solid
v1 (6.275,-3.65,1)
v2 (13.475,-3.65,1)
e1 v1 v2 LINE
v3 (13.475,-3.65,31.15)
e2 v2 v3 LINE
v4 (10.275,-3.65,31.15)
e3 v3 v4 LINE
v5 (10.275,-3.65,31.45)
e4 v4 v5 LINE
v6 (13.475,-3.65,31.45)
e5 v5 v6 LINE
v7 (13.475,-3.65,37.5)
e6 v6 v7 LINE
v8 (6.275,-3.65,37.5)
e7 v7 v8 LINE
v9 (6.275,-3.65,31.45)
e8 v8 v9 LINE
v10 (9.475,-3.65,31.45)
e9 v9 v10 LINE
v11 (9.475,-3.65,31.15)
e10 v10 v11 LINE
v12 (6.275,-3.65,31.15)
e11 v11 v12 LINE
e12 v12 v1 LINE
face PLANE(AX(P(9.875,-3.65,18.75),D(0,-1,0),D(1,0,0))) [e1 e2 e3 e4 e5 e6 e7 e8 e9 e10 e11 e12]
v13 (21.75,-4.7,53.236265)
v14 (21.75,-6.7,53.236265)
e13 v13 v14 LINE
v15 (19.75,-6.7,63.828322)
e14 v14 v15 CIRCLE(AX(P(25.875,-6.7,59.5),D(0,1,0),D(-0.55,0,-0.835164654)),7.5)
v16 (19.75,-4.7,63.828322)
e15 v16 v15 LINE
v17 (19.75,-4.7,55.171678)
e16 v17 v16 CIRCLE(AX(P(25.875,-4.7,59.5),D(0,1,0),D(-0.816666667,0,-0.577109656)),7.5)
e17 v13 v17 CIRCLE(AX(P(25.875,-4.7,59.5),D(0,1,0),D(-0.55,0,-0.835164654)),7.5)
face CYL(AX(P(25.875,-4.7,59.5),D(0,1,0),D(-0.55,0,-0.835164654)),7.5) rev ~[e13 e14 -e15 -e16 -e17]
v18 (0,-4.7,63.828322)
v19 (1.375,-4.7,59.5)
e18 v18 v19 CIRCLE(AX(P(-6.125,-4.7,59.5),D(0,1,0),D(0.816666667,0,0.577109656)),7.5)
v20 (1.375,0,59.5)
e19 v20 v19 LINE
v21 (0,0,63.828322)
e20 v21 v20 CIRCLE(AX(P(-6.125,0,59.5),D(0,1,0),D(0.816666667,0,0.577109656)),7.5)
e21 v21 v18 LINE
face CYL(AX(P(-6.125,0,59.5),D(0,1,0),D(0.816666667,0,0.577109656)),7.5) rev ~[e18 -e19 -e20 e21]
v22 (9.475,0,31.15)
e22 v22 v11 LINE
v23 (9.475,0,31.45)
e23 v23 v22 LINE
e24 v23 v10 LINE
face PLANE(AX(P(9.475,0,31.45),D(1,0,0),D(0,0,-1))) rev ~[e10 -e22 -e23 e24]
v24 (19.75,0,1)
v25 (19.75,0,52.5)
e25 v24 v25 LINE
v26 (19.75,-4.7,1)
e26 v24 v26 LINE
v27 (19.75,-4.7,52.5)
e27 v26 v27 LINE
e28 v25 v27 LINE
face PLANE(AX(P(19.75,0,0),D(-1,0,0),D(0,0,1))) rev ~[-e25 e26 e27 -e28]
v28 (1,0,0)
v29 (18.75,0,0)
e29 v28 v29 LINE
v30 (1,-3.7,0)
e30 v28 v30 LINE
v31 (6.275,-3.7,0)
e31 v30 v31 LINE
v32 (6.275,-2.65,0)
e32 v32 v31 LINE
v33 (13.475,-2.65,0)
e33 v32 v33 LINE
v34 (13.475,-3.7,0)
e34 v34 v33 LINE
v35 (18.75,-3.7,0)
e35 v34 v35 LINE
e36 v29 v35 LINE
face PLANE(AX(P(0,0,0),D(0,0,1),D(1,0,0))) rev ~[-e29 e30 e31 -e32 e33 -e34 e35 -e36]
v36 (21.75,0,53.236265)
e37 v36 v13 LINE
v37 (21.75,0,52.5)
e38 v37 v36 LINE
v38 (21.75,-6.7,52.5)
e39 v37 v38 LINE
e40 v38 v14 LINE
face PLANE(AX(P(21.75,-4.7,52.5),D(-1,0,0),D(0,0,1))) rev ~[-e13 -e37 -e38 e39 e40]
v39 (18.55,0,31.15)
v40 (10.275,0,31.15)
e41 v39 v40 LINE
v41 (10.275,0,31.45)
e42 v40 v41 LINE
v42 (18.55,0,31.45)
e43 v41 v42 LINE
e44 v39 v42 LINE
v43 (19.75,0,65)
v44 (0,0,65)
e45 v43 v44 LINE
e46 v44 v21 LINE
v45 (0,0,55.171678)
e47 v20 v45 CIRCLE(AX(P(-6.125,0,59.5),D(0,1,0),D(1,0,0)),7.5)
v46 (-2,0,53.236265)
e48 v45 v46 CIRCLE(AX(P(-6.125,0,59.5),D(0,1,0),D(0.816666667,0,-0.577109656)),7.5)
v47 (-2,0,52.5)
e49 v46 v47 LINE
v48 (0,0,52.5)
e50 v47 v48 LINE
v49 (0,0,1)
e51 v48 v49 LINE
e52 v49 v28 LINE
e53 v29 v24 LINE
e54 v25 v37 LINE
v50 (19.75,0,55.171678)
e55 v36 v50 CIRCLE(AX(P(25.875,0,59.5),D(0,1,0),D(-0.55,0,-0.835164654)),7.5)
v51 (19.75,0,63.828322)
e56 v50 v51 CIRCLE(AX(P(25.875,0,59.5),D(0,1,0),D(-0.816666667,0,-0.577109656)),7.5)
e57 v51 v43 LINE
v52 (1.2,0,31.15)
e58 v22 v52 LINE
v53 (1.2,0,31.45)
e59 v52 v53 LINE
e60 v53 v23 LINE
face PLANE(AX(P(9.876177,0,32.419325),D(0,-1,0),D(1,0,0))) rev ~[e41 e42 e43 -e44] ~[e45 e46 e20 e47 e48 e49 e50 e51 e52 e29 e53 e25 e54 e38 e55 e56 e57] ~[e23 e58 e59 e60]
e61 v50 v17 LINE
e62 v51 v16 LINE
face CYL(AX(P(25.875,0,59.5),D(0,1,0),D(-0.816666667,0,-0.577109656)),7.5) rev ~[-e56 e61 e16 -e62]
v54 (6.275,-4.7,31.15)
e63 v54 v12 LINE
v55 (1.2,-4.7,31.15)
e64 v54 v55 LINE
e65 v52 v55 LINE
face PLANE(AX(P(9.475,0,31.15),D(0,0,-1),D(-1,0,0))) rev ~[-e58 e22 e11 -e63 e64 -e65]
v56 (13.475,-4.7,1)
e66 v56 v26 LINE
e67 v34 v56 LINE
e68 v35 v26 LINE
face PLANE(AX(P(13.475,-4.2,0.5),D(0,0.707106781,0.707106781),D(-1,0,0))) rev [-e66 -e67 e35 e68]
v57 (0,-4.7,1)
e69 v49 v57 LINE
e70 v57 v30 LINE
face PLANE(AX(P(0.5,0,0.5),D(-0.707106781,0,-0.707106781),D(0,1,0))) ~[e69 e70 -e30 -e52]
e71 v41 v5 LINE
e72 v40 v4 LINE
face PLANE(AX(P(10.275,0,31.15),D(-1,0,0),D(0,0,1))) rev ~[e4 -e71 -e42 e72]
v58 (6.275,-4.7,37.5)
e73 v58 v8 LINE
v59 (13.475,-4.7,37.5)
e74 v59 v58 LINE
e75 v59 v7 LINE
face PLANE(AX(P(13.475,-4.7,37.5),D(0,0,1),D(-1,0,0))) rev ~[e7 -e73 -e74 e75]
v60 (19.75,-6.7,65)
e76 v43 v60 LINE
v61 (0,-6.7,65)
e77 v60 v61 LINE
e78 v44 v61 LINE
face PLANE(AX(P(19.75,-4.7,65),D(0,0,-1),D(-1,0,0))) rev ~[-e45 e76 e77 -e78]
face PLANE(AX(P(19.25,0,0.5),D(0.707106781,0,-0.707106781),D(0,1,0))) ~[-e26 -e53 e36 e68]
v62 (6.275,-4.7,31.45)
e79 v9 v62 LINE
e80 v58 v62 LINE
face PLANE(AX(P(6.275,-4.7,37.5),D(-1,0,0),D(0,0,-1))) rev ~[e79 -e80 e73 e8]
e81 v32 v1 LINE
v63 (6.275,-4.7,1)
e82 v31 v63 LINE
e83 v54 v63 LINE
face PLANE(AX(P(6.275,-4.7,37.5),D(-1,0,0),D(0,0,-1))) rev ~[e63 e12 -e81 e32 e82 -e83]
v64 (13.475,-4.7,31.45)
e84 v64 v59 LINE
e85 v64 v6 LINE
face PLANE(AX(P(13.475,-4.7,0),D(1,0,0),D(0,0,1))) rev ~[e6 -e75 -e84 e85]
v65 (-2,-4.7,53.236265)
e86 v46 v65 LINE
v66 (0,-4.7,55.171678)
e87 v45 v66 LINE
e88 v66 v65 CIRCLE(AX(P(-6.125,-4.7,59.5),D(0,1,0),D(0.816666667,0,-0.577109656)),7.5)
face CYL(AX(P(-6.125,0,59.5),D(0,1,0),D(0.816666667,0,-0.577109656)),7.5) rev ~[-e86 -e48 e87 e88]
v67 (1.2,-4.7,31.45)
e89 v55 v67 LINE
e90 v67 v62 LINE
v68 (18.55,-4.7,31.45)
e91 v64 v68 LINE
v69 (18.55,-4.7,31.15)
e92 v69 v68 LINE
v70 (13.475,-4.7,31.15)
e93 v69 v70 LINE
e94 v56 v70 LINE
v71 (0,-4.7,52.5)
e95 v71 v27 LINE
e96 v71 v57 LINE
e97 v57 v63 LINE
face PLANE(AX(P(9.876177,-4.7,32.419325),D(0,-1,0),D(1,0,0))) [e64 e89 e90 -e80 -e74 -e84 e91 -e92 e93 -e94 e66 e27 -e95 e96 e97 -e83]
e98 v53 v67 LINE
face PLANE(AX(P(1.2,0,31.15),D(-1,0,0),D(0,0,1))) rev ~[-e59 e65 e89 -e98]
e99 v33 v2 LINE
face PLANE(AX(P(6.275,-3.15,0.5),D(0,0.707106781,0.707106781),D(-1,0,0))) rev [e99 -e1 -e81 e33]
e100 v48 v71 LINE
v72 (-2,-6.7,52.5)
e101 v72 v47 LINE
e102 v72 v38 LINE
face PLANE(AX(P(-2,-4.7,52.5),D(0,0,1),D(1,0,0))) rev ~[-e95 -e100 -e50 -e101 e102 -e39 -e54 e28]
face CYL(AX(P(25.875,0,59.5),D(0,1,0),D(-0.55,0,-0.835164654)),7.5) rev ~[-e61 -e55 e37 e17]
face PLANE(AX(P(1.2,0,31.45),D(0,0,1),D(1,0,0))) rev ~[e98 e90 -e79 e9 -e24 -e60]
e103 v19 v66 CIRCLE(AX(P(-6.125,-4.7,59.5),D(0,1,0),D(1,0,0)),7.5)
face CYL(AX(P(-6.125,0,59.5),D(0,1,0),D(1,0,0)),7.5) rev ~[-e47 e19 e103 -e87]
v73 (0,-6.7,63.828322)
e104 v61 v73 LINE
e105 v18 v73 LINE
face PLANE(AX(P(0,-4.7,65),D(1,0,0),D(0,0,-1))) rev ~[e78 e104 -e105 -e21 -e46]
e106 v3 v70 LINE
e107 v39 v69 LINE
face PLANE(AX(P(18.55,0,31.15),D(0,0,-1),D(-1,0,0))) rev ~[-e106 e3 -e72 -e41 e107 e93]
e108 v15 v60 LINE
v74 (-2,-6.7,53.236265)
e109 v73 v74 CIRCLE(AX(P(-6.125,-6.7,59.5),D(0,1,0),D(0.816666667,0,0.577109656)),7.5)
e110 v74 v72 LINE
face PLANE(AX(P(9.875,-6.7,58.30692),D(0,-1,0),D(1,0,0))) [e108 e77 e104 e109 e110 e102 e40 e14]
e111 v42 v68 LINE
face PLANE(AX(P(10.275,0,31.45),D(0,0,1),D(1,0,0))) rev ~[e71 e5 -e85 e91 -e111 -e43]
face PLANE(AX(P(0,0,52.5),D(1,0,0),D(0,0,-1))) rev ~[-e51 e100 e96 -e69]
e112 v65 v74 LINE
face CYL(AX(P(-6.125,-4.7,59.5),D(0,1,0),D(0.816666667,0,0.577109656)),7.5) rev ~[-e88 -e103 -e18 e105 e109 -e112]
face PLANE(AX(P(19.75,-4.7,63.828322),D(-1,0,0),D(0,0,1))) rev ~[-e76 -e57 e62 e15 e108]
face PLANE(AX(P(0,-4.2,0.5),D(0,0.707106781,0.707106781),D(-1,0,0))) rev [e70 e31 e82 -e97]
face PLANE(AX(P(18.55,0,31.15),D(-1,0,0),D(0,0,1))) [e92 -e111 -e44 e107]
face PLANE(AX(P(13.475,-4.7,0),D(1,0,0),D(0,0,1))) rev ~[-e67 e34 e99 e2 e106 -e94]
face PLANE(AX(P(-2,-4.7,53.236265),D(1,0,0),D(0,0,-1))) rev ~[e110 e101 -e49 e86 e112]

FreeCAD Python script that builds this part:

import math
import FreeCAD as App
import Part
import Sketcher


def edges_at(feature, points):
    """Names of the edges that pass closest to the given points."""
    edges = feature.Shape.Edges
    near = lambda p: min(range(len(edges)), key=lambda i: edges[i].distToShape(Part.Vertex(*p))[0])
    return sorted({f"Edge{near(p) + 1}" for p in points})


def add_polygon(sketch, points):
    """Adds a closed chain of lines whose ends are joined by coincident constraints."""
    first, n = sketch.GeometryCount, len(points)
    for a, b in zip(points, points[1:] + points[:1]):
        sketch.addGeometry(Part.LineSegment(App.Vector(*a, 0), App.Vector(*b, 0)), False)
    for i in range(n):
        sketch.addConstraint(Sketcher.Constraint("Coincident", first + i, 2, first + (i + 1) % n, 1))

doc = App.newDocument("Part")
body = doc.addObject("PartDesign::Body", "Body")

# Sketch on XZ plane
sketch1 = body.newObject("Sketcher::SketchObject", "Sketch")
sketch1.AttachmentSupport = (doc.getObject("XZ_Plane"), [""])
sketch1.MapMode = "FlatFace"
sketch1.addGeometry(Part.LineSegment(App.Vector(0, 0, 0), App.Vector(19.75, 0, 0)), False)  # 0
sketch1.addGeometry(Part.LineSegment(App.Vector(19.75, 0, 0), App.Vector(19.75, 52.5, 0)), False)  # 1
sketch1.addGeometry(Part.LineSegment(App.Vector(19.75, 52.5, 0), App.Vector(21.75, 52.5, 0)), False)  # 2
sketch1.addGeometry(Part.LineSegment(App.Vector(21.75, 52.5, 0), App.Vector(21.75, 53.24, 0)), False)  # 3
sketch1.addGeometry(Part.ArcOfCircle(Part.Circle(App.Vector(25.87, 59.5, 0), App.Vector(0, 0, 1), 7.5), math.radians(-145), math.radians(-123)), False)  # 4
sketch1.addGeometry(Part.ArcOfCircle(Part.Circle(App.Vector(25.88, 59.5, 0), App.Vector(0, 0, 1), 7.5), math.radians(145), math.radians(215)), False)  # 5
sketch1.addGeometry(Part.LineSegment(App.Vector(19.75, 63.83, 0), App.Vector(19.75, 65, 0)), False)  # 6
sketch1.addGeometry(Part.LineSegment(App.Vector(19.75, 65, 0), App.Vector(0, 65, 0)), False)  # 7
sketch1.addGeometry(Part.LineSegment(App.Vector(0, 65, 0), App.Vector(0, 63.83, 0)), False)  # 8
sketch1.addGeometry(Part.ArcOfCircle(Part.Circle(App.Vector(-6.13, 59.5, 0), App.Vector(0, 0, 1), 7.5), math.radians(0), math.radians(35)), False)  # 9
sketch1.addGeometry(Part.ArcOfCircle(Part.Circle(App.Vector(-6.13, 59.5, 0), App.Vector(0, 0, 1), 7.5), math.radians(-35), math.radians(0)), False)  # 10
sketch1.addGeometry(Part.ArcOfCircle(Part.Circle(App.Vector(-6.12, 59.5, 0), App.Vector(0, 0, 1), 7.5), math.radians(-57), math.radians(-35)), False)  # 11
sketch1.addGeometry(Part.LineSegment(App.Vector(-2, 53.24, 0), App.Vector(-2, 52.5, 0)), False)  # 12
sketch1.addGeometry(Part.LineSegment(App.Vector(-2, 52.5, 0), App.Vector(0, 52.5, 0)), False)  # 13
sketch1.addGeometry(Part.LineSegment(App.Vector(0, 52.5, 0), App.Vector(0, 0, 0)), False)  # 14
add_polygon(sketch1, [(18.55, 31.15), (10.28, 31.15), (10.28, 31.45), (18.55, 31.45)])  # lines 15-18
add_polygon(sketch1, [(1.2, 31.45), (9.47, 31.45), (9.47, 31.15), (1.2, 31.15)])  # lines 19-22
sketch1.addConstraint(Sketcher.Constraint("Coincident", 0, 2, 1, 1))
sketch1.addConstraint(Sketcher.Constraint("Coincident", 1, 2, 2, 1))
sketch1.addConstraint(Sketcher.Constraint("Coincident", 2, 2, 3, 1))
sketch1.addConstraint(Sketcher.Constraint("Coincident", 3, 2, 4, 2))
sketch1.addConstraint(Sketcher.Constraint("Tangent", 4, 1, 5, 2))
sketch1.addConstraint(Sketcher.Constraint("Coincident", 5, 1, 6, 1))
sketch1.addConstraint(Sketcher.Constraint("Coincident", 6, 2, 7, 1))
sketch1.addConstraint(Sketcher.Constraint("Coincident", 7, 2, 8, 1))
sketch1.addConstraint(Sketcher.Constraint("Coincident", 8, 2, 9, 2))
sketch1.addConstraint(Sketcher.Constraint("Tangent", 9, 1, 10, 2))
sketch1.addConstraint(Sketcher.Constraint("Tangent", 10, 1, 11, 2))
sketch1.addConstraint(Sketcher.Constraint("Coincident", 11, 1, 12, 1))
sketch1.addConstraint(Sketcher.Constraint("Coincident", 12, 2, 13, 1))
sketch1.addConstraint(Sketcher.Constraint("Coincident", 13, 2, 14, 1))
sketch1.addConstraint(Sketcher.Constraint("Coincident", 14, 2, 0, 1))
sketch1.addConstraint(Sketcher.Constraint("Horizontal", 0))
sketch1.addConstraint(Sketcher.Constraint("Vertical", 1))
sketch1.addConstraint(Sketcher.Constraint("Horizontal", 2))
sketch1.addConstraint(Sketcher.Constraint("Vertical", 3))
sketch1.addConstraint(Sketcher.Constraint("Vertical", 6))
sketch1.addConstraint(Sketcher.Constraint("Horizontal", 7))
sketch1.addConstraint(Sketcher.Constraint("Vertical", 8))
sketch1.addConstraint(Sketcher.Constraint("Vertical", 12))
sketch1.addConstraint(Sketcher.Constraint("Horizontal", 13))
sketch1.addConstraint(Sketcher.Constraint("Vertical", 14))
sketch1.addConstraint(Sketcher.Constraint("Horizontal", 15))
sketch1.addConstraint(Sketcher.Constraint("Vertical", 16))
sketch1.addConstraint(Sketcher.Constraint("Horizontal", 17))
sketch1.addConstraint(Sketcher.Constraint("Vertical", 18))
sketch1.addConstraint(Sketcher.Constraint("Horizontal", 19))
sketch1.addConstraint(Sketcher.Constraint("Vertical", 20))
sketch1.addConstraint(Sketcher.Constraint("Horizontal", 21))
sketch1.addConstraint(Sketcher.Constraint("Vertical", 22))
sketch1.addConstraint(Sketcher.Constraint("Coincident", 14, 2, -1, 1))
sketch1.addConstraint(Sketcher.Constraint("Coincident", 11, 3, 9, 3))
sketch1.addConstraint(Sketcher.Constraint("Equal", 4, 5))
sketch1.addConstraint(Sketcher.Constraint("Equal", 5, 9))
sketch1.addConstraint(Sketcher.Constraint("PointOnObject", 7, 2, -2))
sketch1.addConstraint(Sketcher.Constraint("PointOnObject", 10, 1, -2))
sketch1.addConstraint(Sketcher.Constraint("Horizontal", 5, 3, 9, 3))
sketch1.addConstraint(Sketcher.Constraint("Horizontal", 5, 1, 8, 2))
sketch1.addConstraint(Sketcher.Constraint("Horizontal", 11, 3, 9, 1))
sketch1.addConstraint(Sketcher.Constraint("Horizontal", 4, 1, 10, 1))
sketch1.addConstraint(Sketcher.Constraint("Horizontal", 3, 2, 11, 1))
sketch1.addConstraint(Sketcher.Constraint("Horizontal", 2, 2, 12, 2))
sketch1.addConstraint(Sketcher.Constraint("Horizontal", 17, 2, 19, 2))
sketch1.addConstraint(Sketcher.Constraint("Horizontal", 18, 2, 20, 2))
sketch1.addConstraint(Sketcher.Constraint("Vertical", 1, 2, 4, 1))
sketch1.addConstraint(Sketcher.Constraint("Equal", 17, 19))
sketch1.addConstraint(Sketcher.Constraint("Radius", 4, 7.5))
sketch1.addConstraint(Sketcher.Constraint("DistanceX", 2, 1, 2, 2, 2.0))
sketch1.addConstraint(Sketcher.Constraint("DistanceY", 1, 1, 1, 2, 52.5))
sketch1.addConstraint(Sketcher.Constraint("DistanceY", 16, 1, 16, 2, 0.3))
sketch1.addConstraint(Sketcher.Constraint("DistanceY", -1, 1, 6, 2, 65.0))
sketch1.addConstraint(Sketcher.Constraint("DistanceX", 9, 3, 4, 3, 32.0))
sketch1.addConstraint(Sketcher.Constraint("DistanceY", 1, 2, 4, 3, 7.0))
sketch1.addConstraint(Sketcher.Constraint("DistanceX", 0, 1, 0, 2, 19.75))
sketch1.addConstraint(Sketcher.Constraint("DistanceX", -1, 1, 21, 2, 1.2))
sketch1.addConstraint(Sketcher.Constraint("DistanceX", 17, 2, 1, 2, 1.2))
sketch1.addConstraint(Sketcher.Constraint("DistanceX", 19, 2, 16, 2, 0.8))
sketch1.addConstraint(Sketcher.Constraint("DistanceY", -1, 1, 15, 2, 31.15))
pad1 = body.newObject("PartDesign::Pad", "Pad")
pad1.Profile = sketch1
pad1.Length = 4.7

# Sketch on XZ plane
sketch2 = body.newObject("Sketcher::SketchObject", "Sketch001")
sketch2.AttachmentSupport = (doc.getObject("XZ_Plane"), [""])
sketch2.MapMode = "FlatFace"
sketch2.AttachmentOffset = App.Placement(App.Vector(0, 0, 4.7), App.Rotation())
add_polygon(sketch2, [(13, 38), (6, 38), (6, 0), (13, 0)])  # lines 0-3
sketch2.addConstraint(Sketcher.Constraint("Horizontal", 0))
sketch2.addConstraint(Sketcher.Constraint("Vertical", 1))
sketch2.addConstraint(Sketcher.Constraint("Horizontal", 2))
sketch2.addConstraint(Sketcher.Constraint("Vertical", 3))
sketch2.addConstraint(Sketcher.Constraint("PointOnObject", 1, 2, -1))
sketch2.addConstraint(Sketcher.Constraint("DistanceX", 0, 2, 0, 1, 7.2))
sketch2.addConstraint(Sketcher.Constraint("DistanceY", 1, 2, 1, 1, 37.5))
sketch2.addConstraint(Sketcher.Constraint("DistanceX", -1, 1, 0, 2, 6.275))
pocket1 = body.newObject("PartDesign::Pocket", "Pocket")
pocket1.Profile = sketch2
pocket1.Length = 1.05

# Sketch on XZ plane
sketch3 = body.newObject("Sketcher::SketchObject", "Sketch002")
sketch3.AttachmentSupport = (doc.getObject("XZ_Plane"), [""])
sketch3.MapMode = "FlatFace"
sketch3.AttachmentOffset = App.Placement(App.Vector(0, 0, 4.7), App.Rotation())
sketch3.addGeometry(Part.LineSegment(App.Vector(-2, 52.5, 0), App.Vector(21.8, 52.5, 0)), False)
sketch3.addGeometry(Part.LineSegment(App.Vector(21.8, 52.5, 0), App.Vector(21.8, 53.2, 0)), False)
sketch3.addGeometry(Part.ArcOfCircle(Part.Circle(App.Vector(25.9, 59.5, 0), App.Vector(0, 0, 1), 7.5), math.radians(145), math.radians(237)), False)
sketch3.addGeometry(Part.LineSegment(App.Vector(19.8, 63.8, 0), App.Vector(19.8, 65, 0)), False)
sketch3.addGeometry(Part.LineSegment(App.Vector(19.8, 65, 0), App.Vector(0, 65, 0)), False)
sketch3.addGeometry(Part.LineSegment(App.Vector(0, 65, 0), App.Vector(0, 63.8, 0)), False)
sketch3.addGeometry(Part.ArcOfCircle(Part.Circle(App.Vector(-6.1, 59.5, 0), App.Vector(0, 0, 1), 7.5), math.radians(-57), math.radians(35)), False)
sketch3.addGeometry(Part.LineSegment(App.Vector(-2, 53.2, 0), App.Vector(-2, 52.5, 0)), False)
sketch3.addConstraint(Sketcher.Constraint("Coincident", 0, 2, 1, 1))
sketch3.addConstraint(Sketcher.Constraint("Coincident", 1, 2, 2, 2))
sketch3.addConstraint(Sketcher.Constraint("Coincident", 2, 1, 3, 1))
sketch3.addConstraint(Sketcher.Constraint("Coincident", 3, 2, 4, 1))
sketch3.addConstraint(Sketcher.Constraint("Coincident", 4, 2, 5, 1))
sketch3.addConstraint(Sketcher.Constraint("Coincident", 5, 2, 6, 2))
sketch3.addConstraint(Sketcher.Constraint("Coincident", 6, 1, 7, 1))
sketch3.addConstraint(Sketcher.Constraint("Coincident", 7, 2, 0, 1))
sketch3.addConstraint(Sketcher.Constraint("Horizontal", 0))
sketch3.addConstraint(Sketcher.Constraint("Vertical", 1))
sketch3.addConstraint(Sketcher.Constraint("Vertical", 3))
sketch3.addConstraint(Sketcher.Constraint("Horizontal", 4))
sketch3.addConstraint(Sketcher.Constraint("Vertical", 5))
sketch3.addConstraint(Sketcher.Constraint("Vertical", 7))
sketch3.addConstraint(Sketcher.Constraint("Equal", 2, 6))
sketch3.addConstraint(Sketcher.Constraint("PointOnObject", 4, 2, -2))
sketch3.addConstraint(Sketcher.Constraint("Horizontal", 2, 3, 6, 3))
sketch3.addConstraint(Sketcher.Constraint("Horizontal", 2, 1, 5, 2))
sketch3.addConstraint(Sketcher.Constraint("Horizontal", 1, 2, 6, 1))
sketch3.addConstraint(Sketcher.Constraint("Radius", 2, 7.5))
sketch3.addConstraint(Sketcher.Constraint("DistanceY", -1, 1, 3, 2, 65.0))
sketch3.addConstraint(Sketcher.Constraint("DistanceX", 6, 1, -1, 1, 2.0))
sketch3.addConstraint(Sketcher.Constraint("DistanceX", 6, 3, 2, 3, 32.0))
sketch3.addConstraint(Sketcher.Constraint("DistanceY", 0, 2, 2, 3, 7.0))
sketch3.addConstraint(Sketcher.Constraint("DistanceX", 0, 1, 0, 2, 23.75))
sketch3.addConstraint(Sketcher.Constraint("DistanceY", -1, 1, 2, 3, 59.5))
pad2 = body.newObject("PartDesign::Pad", "Pad001")
pad2.Profile = sketch3
pad2.Length = 2
doc.recompute()

chamfer = body.newObject("PartDesign::Chamfer", "Chamfer")
chamfer.Base = (pad2, edges_at(pad2, [
    (0, -2.35, 0),
    (19.75, -2.35, 0),
    (3.138, -4.7, 0),
    (16.613, -4.7, 0),
    (9.875, -3.65, 0),
]))
chamfer.Size = 1

doc.recompute()
